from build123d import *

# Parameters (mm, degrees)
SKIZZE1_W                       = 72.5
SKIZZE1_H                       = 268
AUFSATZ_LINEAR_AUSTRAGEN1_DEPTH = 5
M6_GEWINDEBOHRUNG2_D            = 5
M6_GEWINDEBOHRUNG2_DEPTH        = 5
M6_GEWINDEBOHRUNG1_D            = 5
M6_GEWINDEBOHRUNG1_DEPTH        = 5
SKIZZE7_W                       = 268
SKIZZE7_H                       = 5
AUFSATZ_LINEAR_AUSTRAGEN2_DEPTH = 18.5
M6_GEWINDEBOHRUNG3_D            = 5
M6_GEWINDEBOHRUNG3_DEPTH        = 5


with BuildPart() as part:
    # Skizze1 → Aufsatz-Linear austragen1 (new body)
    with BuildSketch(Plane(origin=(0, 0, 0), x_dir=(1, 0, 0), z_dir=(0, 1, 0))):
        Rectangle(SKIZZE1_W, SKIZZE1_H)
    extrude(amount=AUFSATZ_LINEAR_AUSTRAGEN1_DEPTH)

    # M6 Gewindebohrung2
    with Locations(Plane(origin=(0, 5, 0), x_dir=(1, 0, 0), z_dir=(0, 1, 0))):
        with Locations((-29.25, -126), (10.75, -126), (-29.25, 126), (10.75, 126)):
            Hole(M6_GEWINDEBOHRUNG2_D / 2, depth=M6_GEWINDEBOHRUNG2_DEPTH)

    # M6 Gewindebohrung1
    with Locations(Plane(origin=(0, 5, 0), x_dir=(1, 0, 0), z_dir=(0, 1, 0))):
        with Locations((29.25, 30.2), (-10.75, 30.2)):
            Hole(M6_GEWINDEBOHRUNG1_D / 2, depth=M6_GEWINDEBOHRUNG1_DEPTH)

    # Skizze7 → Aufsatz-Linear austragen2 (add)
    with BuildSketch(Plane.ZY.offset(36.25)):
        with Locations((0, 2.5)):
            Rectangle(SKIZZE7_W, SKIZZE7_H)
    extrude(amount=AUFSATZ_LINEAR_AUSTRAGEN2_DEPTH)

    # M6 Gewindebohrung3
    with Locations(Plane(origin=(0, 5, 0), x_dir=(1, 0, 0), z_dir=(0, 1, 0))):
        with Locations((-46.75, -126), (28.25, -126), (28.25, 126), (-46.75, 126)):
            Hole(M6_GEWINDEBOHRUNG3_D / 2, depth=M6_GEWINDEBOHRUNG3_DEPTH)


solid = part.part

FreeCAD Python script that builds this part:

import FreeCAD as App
import Part
import Sketcher


def add_polygon(sketch, points):
    """Adds a closed chain of lines whose ends are joined by coincident constraints."""
    first, n = sketch.GeometryCount, len(points)
    for a, b in zip(points, points[1:] + points[:1]):
        sketch.addGeometry(Part.LineSegment(App.Vector(*a, 0), App.Vector(*b, 0)), False)
    for i in range(n):
        sketch.addConstraint(Sketcher.Constraint("Coincident", first + i, 2, first + (i + 1) % n, 1))

doc = App.newDocument("Part")
body = doc.addObject("PartDesign::Body", "Body")

sketch1 = doc.addObject("Sketcher::SketchObject", "Sketch")
body.addObject(sketch1)
sketch1.AttachmentSupport = (doc.XZ_Plane, [""])
sketch1.MapMode = "FlatFace"
add_polygon(sketch1, [(-36, -134), (-36, 134), (36, 134), (36, -134)])
sketch1.addConstraint([
    Sketcher.Constraint("Vertical", 0),
    Sketcher.Constraint("Horizontal", 1),
    Sketcher.Constraint("Vertical", 2),
    Sketcher.Constraint("Horizontal", 3),
    Sketcher.Constraint("Symmetric", 0, 2, 2, 2, -1, 1),
    Sketcher.Constraint("DistanceY", 0, 1, 0, 2, 268.0),
    Sketcher.Constraint("DistanceX", 1, 1, 1, 2, 72.5),
])
pad1 = doc.addObject("PartDesign::Pad", "Pad")
body.addObject(pad1)
pad1.Profile = sketch1
pad1.Length = 5
pad1.Reversed = True

sketch2 = doc.addObject("Sketcher::SketchObject", "Sketch001")
body.addObject(sketch2)
sketch2.AttachmentSupport = (doc.XZ_Plane, [""])
sketch2.MapMode = "FlatFace"
sketch2.AttachmentOffset = App.Placement(App.Vector(0, 0, -5), App.Rotation())
sketch2.addGeometry([
    Part.Circle(App.Vector(-29.2, 126, 0), App.Vector(0, 0, 1), 2.5),
    Part.Circle(App.Vector(10.8, 126, 0), App.Vector(0, 0, 1), 2.5),
    Part.Circle(App.Vector(-29.2, -126, 0), App.Vector(0, 0, 1), 2.5),
    Part.Circle(App.Vector(10.8, -126, 0), App.Vector(0, 0, 1), 2.5),
], False)
sketch2.addConstraint([
    Sketcher.Constraint("Equal", 0, 1),
    Sketcher.Constraint("Equal", 1, 2),
    Sketcher.Constraint("Equal", 2, 3),
    Sketcher.Constraint("Symmetric", 0, 3, 2, 3, -1),
    Sketcher.Constraint("Symmetric", 1, 3, 3, 3, -1),
    Sketcher.Constraint("Horizontal", 0, 3, 1, 3),
    Sketcher.Constraint("Diameter", 0, 5.0),
    Sketcher.Constraint("DistanceY", -1, 1, 0, 3, 126.0),
    Sketcher.Constraint("DistanceX", 0, 3, 1, 3, 40.0),
    Sketcher.Constraint("DistanceX", 0, 3, -1, 1, 29.25),
])
doc.recompute()
hole = doc.addObject("PartDesign::Hole", "Hole")
body.addObject(hole)
hole.Profile = sketch2
hole.ThreadType = "None"
hole.Diameter = 5
hole.DepthType = "Dimension"
hole.Depth = 5
hole.DrillPoint = "Flat"
hole.Reversed = True

sketch3 = doc.addObject("Sketcher::SketchObject", "Sketch002")
body.addObject(sketch3)
sketch3.AttachmentSupport = (doc.XZ_Plane, [""])
sketch3.MapMode = "FlatFace"
sketch3.AttachmentOffset = App.Placement(App.Vector(0, 0, -5), App.Rotation())
sketch3.addGeometry([
    Part.Circle(App.Vector(29.2, -30.2, 0), App.Vector(0, 0, 1), 2.5),
    Part.Circle(App.Vector(-10.8, -30.2, 0), App.Vector(0, 0, 1), 2.5),
], False)
sketch3.addConstraint([
    Sketcher.Constraint("Equal", 0, 1),
    Sketcher.Constraint("Horizontal", 0, 3, 1, 3),
    Sketcher.Constraint("Diameter", 0, 5.0),
    Sketcher.Constraint("DistanceX", 1, 3, 0, 3, 40.0),
    Sketcher.Constraint("DistanceY", 0, 3, -1, 1, 30.2),
    Sketcher.Constraint("DistanceX", -1, 1, 0, 3, 29.25),
])
doc.recompute()
hole2 = doc.addObject("PartDesign::Hole", "Hole001")
body.addObject(hole2)
hole2.Profile = sketch3
hole2.ThreadType = "None"
hole2.Diameter = 5
hole2.DepthType = "Dimension"
hole2.Depth = 5
hole2.DrillPoint = "Flat"
hole2.Reversed = True

sketch4 = doc.addObject("Sketcher::SketchObject", "Sketch003")
body.addObject(sketch4)
sketch4.AttachmentSupport = (doc.YZ_Plane, [""])
sketch4.MapMode = "FlatFace"
sketch4.AttachmentOffset = App.Placement(App.Vector(0, 0, -36.25), App.Rotation())
add_polygon(sketch4, [(5, -134), (0, -134), (0, 134), (5, 134)])
sketch4.addConstraint([
    Sketcher.Constraint("Horizontal", 0),
    Sketcher.Constraint("Vertical", 1),
    Sketcher.Constraint("Horizontal", 2),
    Sketcher.Constraint("Vertical", 3),
    Sketcher.Constraint("Symmetric", 0, 2, 1, 2, -1, 1),
    Sketcher.Constraint("DistanceX", 0, 2, 0, 1, 5.0),
    Sketcher.Constraint("DistanceY", 1, 1, 1, 2, 268.0),
])
pad2 = doc.addObject("PartDesign::Pad", "Pad001")
body.addObject(pad2)
pad2.Profile = sketch4
pad2.Length = 18.5
pad2.Reversed = True

sketch5 = doc.addObject("Sketcher::SketchObject", "Sketch004")
body.addObject(sketch5)
sketch5.AttachmentSupport = (doc.XZ_Plane, [""])
sketch5.MapMode = "FlatFace"
sketch5.AttachmentOffset = App.Placement(App.Vector(0, 0, -5), App.Rotation())
sketch5.addGeometry([
    Part.Circle(App.Vector(-46.8, 126, 0), App.Vector(0, 0, 1), 2.5),
    Part.Circle(App.Vector(28.2, 126, 0), App.Vector(0, 0, 1), 2.5),
    Part.Circle(App.Vector(28.2, -126, 0), App.Vector(0, 0, 1), 2.5),
    Part.Circle(App.Vector(-46.8, -126, 0), App.Vector(0, 0, 1), 2.5),
], False)
sketch5.addConstraint([
    Sketcher.Constraint("Equal", 0, 1),
    Sketcher.Constraint("Equal", 1, 2),
    Sketcher.Constraint("Equal", 2, 3),
    Sketcher.Constraint("Symmetric", 1, 3, 2, 3, -1),
    Sketcher.Constraint("Symmetric", 0, 3, 3, 3, -1),
    Sketcher.Constraint("Horizontal", 0, 3, 1, 3),
    Sketcher.Constraint("Diameter", 0, 5.0),
    Sketcher.Constraint("DistanceY", -1, 1, 0, 3, 126.0),
    Sketcher.Constraint("DistanceX", 0, 3, 1, 3, 75.0),
    Sketcher.Constraint("DistanceX", 0, 3, -1, 1, 46.75),
])
doc.recompute()
hole3 = doc.addObject("PartDesign::Hole", "Hole002")
body.addObject(hole3)
hole3.Profile = sketch5
hole3.ThreadType = "None"
hole3.Diameter = 5
hole3.DepthType = "Dimension"
hole3.Depth = 5
hole3.DrillPoint = "Flat"
hole3.Reversed = True

doc.recompute()
